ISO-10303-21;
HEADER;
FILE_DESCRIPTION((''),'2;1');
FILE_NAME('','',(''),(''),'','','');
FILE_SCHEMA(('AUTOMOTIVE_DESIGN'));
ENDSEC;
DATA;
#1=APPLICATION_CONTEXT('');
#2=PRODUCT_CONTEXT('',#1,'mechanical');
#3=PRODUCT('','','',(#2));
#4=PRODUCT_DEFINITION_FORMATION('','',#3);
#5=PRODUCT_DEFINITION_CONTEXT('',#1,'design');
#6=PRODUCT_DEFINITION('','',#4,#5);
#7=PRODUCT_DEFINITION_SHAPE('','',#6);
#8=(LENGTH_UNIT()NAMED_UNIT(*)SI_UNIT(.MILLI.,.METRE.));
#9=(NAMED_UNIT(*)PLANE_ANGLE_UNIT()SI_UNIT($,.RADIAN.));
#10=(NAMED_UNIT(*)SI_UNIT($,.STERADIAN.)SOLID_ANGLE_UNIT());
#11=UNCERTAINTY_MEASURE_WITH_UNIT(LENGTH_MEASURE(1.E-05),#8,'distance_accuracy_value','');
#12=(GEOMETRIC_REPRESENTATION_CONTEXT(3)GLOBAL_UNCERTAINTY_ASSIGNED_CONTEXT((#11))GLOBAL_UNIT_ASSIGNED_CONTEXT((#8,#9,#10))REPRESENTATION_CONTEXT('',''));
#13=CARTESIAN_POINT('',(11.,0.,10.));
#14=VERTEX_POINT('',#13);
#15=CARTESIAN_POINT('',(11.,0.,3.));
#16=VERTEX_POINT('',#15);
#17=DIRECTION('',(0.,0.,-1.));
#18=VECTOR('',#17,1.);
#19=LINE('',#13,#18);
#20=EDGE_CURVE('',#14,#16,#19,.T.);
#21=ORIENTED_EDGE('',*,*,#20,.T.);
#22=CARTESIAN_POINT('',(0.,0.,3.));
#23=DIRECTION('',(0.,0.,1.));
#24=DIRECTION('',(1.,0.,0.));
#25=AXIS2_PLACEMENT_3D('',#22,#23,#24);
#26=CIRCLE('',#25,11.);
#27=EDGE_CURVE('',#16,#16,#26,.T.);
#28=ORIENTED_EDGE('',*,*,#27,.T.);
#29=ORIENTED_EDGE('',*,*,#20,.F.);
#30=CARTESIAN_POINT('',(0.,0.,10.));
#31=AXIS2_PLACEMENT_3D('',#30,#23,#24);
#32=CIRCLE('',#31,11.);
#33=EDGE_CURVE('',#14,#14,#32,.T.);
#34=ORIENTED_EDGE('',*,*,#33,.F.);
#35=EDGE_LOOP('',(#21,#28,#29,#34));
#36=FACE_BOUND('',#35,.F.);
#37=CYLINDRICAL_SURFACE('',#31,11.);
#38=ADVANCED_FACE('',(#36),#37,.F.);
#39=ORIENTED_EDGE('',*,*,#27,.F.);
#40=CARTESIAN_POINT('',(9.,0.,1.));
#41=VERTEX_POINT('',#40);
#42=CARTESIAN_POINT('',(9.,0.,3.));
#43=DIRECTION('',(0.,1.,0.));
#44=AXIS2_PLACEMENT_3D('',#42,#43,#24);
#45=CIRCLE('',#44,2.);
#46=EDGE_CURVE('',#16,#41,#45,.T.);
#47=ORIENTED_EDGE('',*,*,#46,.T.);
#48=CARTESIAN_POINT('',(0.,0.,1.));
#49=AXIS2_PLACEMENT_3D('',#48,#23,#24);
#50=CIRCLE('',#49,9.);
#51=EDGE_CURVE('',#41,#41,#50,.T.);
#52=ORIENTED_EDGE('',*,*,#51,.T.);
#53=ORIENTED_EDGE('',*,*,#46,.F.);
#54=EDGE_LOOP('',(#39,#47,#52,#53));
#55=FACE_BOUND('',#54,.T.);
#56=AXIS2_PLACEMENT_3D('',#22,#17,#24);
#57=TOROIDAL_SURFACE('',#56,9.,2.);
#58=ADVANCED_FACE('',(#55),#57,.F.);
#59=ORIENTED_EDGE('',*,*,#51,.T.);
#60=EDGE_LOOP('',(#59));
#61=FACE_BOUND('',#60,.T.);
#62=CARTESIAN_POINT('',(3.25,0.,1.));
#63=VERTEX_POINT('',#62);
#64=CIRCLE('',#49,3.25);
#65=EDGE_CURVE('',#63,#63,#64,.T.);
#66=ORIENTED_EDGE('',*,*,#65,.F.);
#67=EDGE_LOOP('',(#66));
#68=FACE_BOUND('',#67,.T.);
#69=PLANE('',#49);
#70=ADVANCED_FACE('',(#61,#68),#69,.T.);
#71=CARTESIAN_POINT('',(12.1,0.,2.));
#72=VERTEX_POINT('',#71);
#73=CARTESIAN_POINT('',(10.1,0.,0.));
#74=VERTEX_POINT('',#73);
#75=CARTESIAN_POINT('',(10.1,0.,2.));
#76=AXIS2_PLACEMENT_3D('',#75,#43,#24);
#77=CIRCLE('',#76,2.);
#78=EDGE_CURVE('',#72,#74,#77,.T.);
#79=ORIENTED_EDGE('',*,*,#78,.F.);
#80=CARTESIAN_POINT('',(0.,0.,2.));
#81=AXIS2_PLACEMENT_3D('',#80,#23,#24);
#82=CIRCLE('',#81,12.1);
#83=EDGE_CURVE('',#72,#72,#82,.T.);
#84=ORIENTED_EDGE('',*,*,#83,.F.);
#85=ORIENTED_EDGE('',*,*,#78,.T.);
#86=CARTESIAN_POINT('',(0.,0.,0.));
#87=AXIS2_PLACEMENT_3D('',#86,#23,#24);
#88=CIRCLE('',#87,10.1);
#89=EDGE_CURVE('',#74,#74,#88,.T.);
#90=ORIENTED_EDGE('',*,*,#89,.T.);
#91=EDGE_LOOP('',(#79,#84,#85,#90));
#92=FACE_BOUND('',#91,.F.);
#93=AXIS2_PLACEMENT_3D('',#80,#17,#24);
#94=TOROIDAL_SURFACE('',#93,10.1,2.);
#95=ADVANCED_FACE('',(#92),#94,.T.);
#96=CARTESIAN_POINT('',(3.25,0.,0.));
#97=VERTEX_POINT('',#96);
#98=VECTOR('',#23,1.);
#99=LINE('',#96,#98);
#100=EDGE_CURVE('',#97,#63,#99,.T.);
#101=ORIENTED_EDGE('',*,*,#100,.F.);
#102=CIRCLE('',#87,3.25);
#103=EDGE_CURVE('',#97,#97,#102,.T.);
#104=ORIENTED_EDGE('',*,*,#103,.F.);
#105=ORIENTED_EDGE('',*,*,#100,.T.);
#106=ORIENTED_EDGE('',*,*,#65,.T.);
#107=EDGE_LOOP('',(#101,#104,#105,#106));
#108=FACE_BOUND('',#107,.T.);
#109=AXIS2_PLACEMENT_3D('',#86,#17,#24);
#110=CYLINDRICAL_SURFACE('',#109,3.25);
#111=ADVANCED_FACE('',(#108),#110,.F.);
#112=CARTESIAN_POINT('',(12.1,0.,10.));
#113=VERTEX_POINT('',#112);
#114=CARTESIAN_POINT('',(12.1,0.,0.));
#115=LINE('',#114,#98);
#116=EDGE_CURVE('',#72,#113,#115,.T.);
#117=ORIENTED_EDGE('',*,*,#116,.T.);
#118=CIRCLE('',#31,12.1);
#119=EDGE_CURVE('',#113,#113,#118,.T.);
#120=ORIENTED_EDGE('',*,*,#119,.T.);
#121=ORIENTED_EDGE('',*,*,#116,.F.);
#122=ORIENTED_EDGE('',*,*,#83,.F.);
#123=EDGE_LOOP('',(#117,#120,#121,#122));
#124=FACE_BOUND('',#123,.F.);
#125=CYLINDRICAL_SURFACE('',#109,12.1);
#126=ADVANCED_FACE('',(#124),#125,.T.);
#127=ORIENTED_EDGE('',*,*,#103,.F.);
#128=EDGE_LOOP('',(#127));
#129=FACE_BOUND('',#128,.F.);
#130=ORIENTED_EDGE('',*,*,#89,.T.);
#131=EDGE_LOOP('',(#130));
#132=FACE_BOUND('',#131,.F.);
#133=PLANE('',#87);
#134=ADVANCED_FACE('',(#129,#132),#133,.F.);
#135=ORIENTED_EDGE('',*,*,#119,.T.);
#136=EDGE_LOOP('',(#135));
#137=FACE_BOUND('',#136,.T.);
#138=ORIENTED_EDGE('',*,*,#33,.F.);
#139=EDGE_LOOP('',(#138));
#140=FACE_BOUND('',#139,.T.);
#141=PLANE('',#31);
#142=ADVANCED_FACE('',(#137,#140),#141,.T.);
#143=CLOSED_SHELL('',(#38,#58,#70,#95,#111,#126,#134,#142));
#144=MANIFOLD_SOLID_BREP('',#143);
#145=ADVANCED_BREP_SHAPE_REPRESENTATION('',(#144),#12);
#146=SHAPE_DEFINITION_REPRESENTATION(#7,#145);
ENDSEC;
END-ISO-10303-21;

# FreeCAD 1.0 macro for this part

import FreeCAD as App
import Part
import Sketcher


def edges_at(feature, points):
    """Names of the edges that pass closest to the given points."""
    edges = feature.Shape.Edges
    near = lambda p: min(range(len(edges)), key=lambda i: edges[i].distToShape(Part.Vertex(*p))[0])
    return sorted({f"Edge{near(p) + 1}" for p in points})

doc = App.newDocument("Part")
body = doc.addObject("PartDesign::Body", "Body")

# Sketch on XY plane
sketch1 = body.newObject("Sketcher::SketchObject", "Sketch")
sketch1.AttachmentSupport = (doc.getObject("XY_Plane"), [""])
sketch1.MapMode = "FlatFace"
sketch1.addGeometry([
    Part.Circle(App.Vector(0, 0, 0), App.Vector(0, 0, 1), 12.1),
    Part.Circle(App.Vector(0, 0, 0), App.Vector(0, 0, 1), 3.2),
], False)
sketch1.addConstraint([
    Sketcher.Constraint("Coincident", 0, 3, -1, 1),
    Sketcher.Constraint("Coincident", 1, 3, -1, 1),
    Sketcher.Constraint("Diameter", 0, 24.2),
    Sketcher.Constraint("Diameter", 1, 6.5),
])
pad1 = body.newObject("PartDesign::Pad", "Pad")
pad1.Profile = sketch1
pad1.Length = 10

# Sketch on XY plane
sketch2 = body.newObject("Sketcher::SketchObject", "Sketch001")
sketch2.AttachmentSupport = (doc.getObject("XY_Plane"), [""])
sketch2.MapMode = "FlatFace"
sketch2.AttachmentOffset = App.Placement(App.Vector(0, 0, 10), App.Rotation())
sketch2.addGeometry([
    Part.Circle(App.Vector(0, 0, 0), App.Vector(0, 0, 1), 11),
    Part.Circle(App.Vector(0, 0, 0), App.Vector(0, 0, 1), 3.2),
], False)
sketch2.addConstraint([
    Sketcher.Constraint("Coincident", 0, 3, -1, 1),
    Sketcher.Constraint("Coincident", 1, 3, -1, 1),
    Sketcher.Constraint("Diameter", 0, 22.0),
    Sketcher.Constraint("Diameter", 1, 6.5),
])
pocket1 = body.newObject("PartDesign::Pocket", "Pocket")
pocket1.Profile = sketch2
pocket1.Length = 9
doc.recompute()

fillet = body.newObject("PartDesign::Fillet", "Fillet")
fillet.Base = (pocket1, edges_at(pocket1, [(-12.1, 0, 0)]))
fillet.Radius = 2
doc.recompute()

fillet2 = body.newObject("PartDesign::Fillet", "Fillet001")
fillet2.Base = (fillet, edges_at(fillet, [(-11, 0, 1)]))
fillet2.Radius = 2

doc.recompute()
